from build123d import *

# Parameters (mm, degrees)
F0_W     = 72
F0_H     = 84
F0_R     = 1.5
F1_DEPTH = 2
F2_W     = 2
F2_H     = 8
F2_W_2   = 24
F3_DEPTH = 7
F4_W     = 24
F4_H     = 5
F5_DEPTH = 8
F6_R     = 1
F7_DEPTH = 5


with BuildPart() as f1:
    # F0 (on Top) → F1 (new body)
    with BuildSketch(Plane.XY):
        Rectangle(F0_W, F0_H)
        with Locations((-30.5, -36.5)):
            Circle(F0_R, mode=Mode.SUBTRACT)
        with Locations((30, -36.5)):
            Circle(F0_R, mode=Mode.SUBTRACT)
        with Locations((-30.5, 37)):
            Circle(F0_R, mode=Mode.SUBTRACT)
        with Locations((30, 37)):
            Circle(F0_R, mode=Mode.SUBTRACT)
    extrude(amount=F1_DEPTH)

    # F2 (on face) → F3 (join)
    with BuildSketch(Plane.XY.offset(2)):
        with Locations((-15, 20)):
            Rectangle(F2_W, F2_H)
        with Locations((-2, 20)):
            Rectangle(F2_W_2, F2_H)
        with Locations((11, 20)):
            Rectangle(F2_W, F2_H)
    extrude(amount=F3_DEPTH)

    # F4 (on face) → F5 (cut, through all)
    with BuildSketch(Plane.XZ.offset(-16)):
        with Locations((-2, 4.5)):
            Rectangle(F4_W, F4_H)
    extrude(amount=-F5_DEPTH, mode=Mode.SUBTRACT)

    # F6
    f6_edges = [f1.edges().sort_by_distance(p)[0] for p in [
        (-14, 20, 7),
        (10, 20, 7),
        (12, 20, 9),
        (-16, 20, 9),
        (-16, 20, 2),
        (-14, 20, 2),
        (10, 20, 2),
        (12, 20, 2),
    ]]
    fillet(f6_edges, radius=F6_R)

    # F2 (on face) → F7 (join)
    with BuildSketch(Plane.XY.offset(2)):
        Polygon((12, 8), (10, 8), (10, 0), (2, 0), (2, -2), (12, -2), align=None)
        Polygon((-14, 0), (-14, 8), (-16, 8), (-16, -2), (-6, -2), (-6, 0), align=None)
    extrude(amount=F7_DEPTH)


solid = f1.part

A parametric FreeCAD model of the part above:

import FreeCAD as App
import Part
import Sketcher
Q = App.Units.Quantity


def edges_at(feature, points):
    """Names of the edges that pass closest to the given points."""
    edges = feature.Shape.Edges
    near = lambda p: min(range(len(edges)), key=lambda i: edges[i].distToShape(Part.Vertex(*p))[0])
    return sorted({f"Edge{near(p) + 1}" for p in points})


def add_polygon(sketch, points):
    """Adds a closed chain of lines whose ends are joined by coincident constraints."""
    first, n = sketch.GeometryCount, len(points)
    for a, b in zip(points, points[1:] + points[:1]):
        sketch.addGeometry(Part.LineSegment(App.Vector(*a, 0), App.Vector(*b, 0)), False)
    for i in range(n):
        sketch.addConstraint(Sketcher.Constraint("Coincident", first + i, 2, first + (i + 1) % n, 1))

doc = App.newDocument("Part")
body = doc.addObject("PartDesign::Body", "Body")

# Sketch on XY plane
sketch1 = body.newObject("Sketcher::SketchObject", "Sketch")
sketch1.AttachmentSupport = (doc.getObject("XY_Plane"), [""])
sketch1.MapMode = "FlatFace"
add_polygon(sketch1, [(-36, 42), (-36, -42), (36, -42), (36, 42)])  # lines 0-3
sketch1.addGeometry(Part.Circle(App.Vector(-30.5, -36.5, 0), App.Vector(0, 0, 1), 1.5), False)  # 4
sketch1.addGeometry(Part.Circle(App.Vector(30, -36.5, 0), App.Vector(0, 0, 1), 1.5), False)  # 5
sketch1.addGeometry(Part.Circle(App.Vector(-30.5, 37, 0), App.Vector(0, 0, 1), 1.5), False)  # 6
sketch1.addGeometry(Part.Circle(App.Vector(30, 37, 0), App.Vector(0, 0, 1), 1.5), False)  # 7
sketch1.addConstraint([
    Sketcher.Constraint("Vertical", 0),
    Sketcher.Constraint("Horizontal", 1),
    Sketcher.Constraint("Vertical", 2),
    Sketcher.Constraint("Horizontal", 3),
    Sketcher.Constraint("Equal", 4, 5),
    Sketcher.Constraint("Equal", 5, 6),
    Sketcher.Constraint("Equal", 6, 7),
    Sketcher.Constraint("Symmetric", 0, 2, 2, 2, -1, 1),
    Sketcher.Constraint("Horizontal", 4, 3, 5, 3),
    Sketcher.Constraint("Horizontal", 6, 3, 7, 3),
    Sketcher.Constraint("Vertical", 4, 3, 6, 3),
    Sketcher.Constraint("Vertical", 5, 3, 7, 3),
    Sketcher.Constraint("Diameter", 4, Q("3 mm")),
    Sketcher.Constraint("DistanceX", 1, 1, 1, 2, Q("72 mm")),
    Sketcher.Constraint("DistanceY", 0, 2, 0, 1, Q("84 mm")),
    Sketcher.Constraint("DistanceX", -1, 1, 5, 3, Q("30 mm")),
    Sketcher.Constraint("DistanceY", -1, 1, 6, 3, Q("37 mm")),
    Sketcher.Constraint("DistanceX", 4, 3, -1, 1, Q("30.5 mm")),
    Sketcher.Constraint("DistanceY", 4, 3, -1, 1, Q("36.5 mm")),
])
pad1 = body.newObject("PartDesign::Pad", "Pad")
pad1.Profile = sketch1
pad1.Length = 2

# Sketch on XY plane
sketch2 = body.newObject("Sketcher::SketchObject", "Sketch001")
sketch2.AttachmentSupport = (doc.getObject("XY_Plane"), [""])
sketch2.MapMode = "FlatFace"
sketch2.AttachmentOffset = App.Placement(App.Vector(0, 0, 2), App.Rotation())
add_polygon(sketch2, [(-16, 24), (-16, 16), (12, 16), (12, 24)])  # lines 0-3
sketch2.addConstraint([
    Sketcher.Constraint("Vertical", 0),
    Sketcher.Constraint("Horizontal", 1),
    Sketcher.Constraint("Vertical", 2),
    Sketcher.Constraint("Horizontal", 3),
    Sketcher.Constraint("DistanceX", 1, 1, 1, 2, Q("28 mm")),
    Sketcher.Constraint("DistanceY", 0, 2, 0, 1, Q("8 mm")),
    Sketcher.Constraint("DistanceX", 0, 2, -1, 1, Q("16 mm")),
    Sketcher.Constraint("DistanceY", -1, 1, 0, 2, Q("16 mm")),
])
pad2 = body.newObject("PartDesign::Pad", "Pad001")
pad2.Profile = sketch2
pad2.Length = 7

# Sketch on XZ plane
sketch3 = body.newObject("Sketcher::SketchObject", "Sketch002")
sketch3.AttachmentSupport = (doc.getObject("XZ_Plane"), [""])
sketch3.MapMode = "FlatFace"
sketch3.AttachmentOffset = App.Placement(App.Vector(0, 0, -16), App.Rotation())
add_polygon(sketch3, [(-14, 7), (-14, 2), (10, 2), (10, 7)])  # lines 0-3
sketch3.addConstraint([
    Sketcher.Constraint("Vertical", 0),
    Sketcher.Constraint("Horizontal", 1),
    Sketcher.Constraint("Vertical", 2),
    Sketcher.Constraint("Horizontal", 3),
    Sketcher.Constraint("DistanceX", 1, 1, 1, 2, Q("24 mm")),
    Sketcher.Constraint("DistanceY", 0, 2, 0, 1, Q("5 mm")),
    Sketcher.Constraint("DistanceX", 0, 2, -1, 1, Q("14 mm")),
    Sketcher.Constraint("DistanceY", -1, 1, 0, 2, Q("2 mm")),
])
pocket1 = body.newObject("PartDesign::Pocket", "Pocket")
pocket1.Profile = sketch3
pocket1.Type = "ThroughAll"
doc.recompute()

fillet = body.newObject("PartDesign::Fillet", "Fillet")
fillet.Base = (pocket1, edges_at(pocket1, [
    (-14, 20, 7),
    (10, 20, 7),
    (12, 20, 9),
    (-16, 20, 9),
    (-16, 20, 2),
    (-14, 20, 2),
    (10, 20, 2),
    (12, 20, 2),
]))
fillet.Radius = 1

# Sketch on XY plane
sketch4 = body.newObject("Sketcher::SketchObject", "Sketch003")
sketch4.AttachmentSupport = (doc.getObject("XY_Plane"), [""])
sketch4.MapMode = "FlatFace"
sketch4.AttachmentOffset = App.Placement(App.Vector(0, 0, 2), App.Rotation())
add_polygon(sketch4, [(12, 8), (10, 8), (10, 0), (2, 0), (2, -2), (12, -2)])  # lines 0-5
add_polygon(sketch4, [(-14, 0), (-14, 8), (-16, 8), (-16, -2), (-6, -2), (-6, 0)])  # lines 6-11
sketch4.addConstraint([
    Sketcher.Constraint("Horizontal", 0),
    Sketcher.Constraint("Vertical", 1),
    Sketcher.Constraint("Horizontal", 2),
    Sketcher.Constraint("Vertical", 3),
    Sketcher.Constraint("Horizontal", 4),
    Sketcher.Constraint("Vertical", 5),
    Sketcher.Constraint("Vertical", 6),
    Sketcher.Constraint("Horizontal", 7),
    Sketcher.Constraint("Vertical", 8),
    Sketcher.Constraint("Horizontal", 9),
    Sketcher.Constraint("Vertical", 10),
    Sketcher.Constraint("Horizontal", 11),
    Sketcher.Constraint("PointOnObject", 1, 2, -1),
    Sketcher.Constraint("PointOnObject", 10, 2, -1),
    Sketcher.Constraint("Horizontal", 5, 2, 6, 2),
    Sketcher.Constraint("Horizontal", 4, 2, 8, 2),
    Sketcher.Constraint("Equal", 0, 7),
    Sketcher.Constraint("Equal", 4, 9),
    Sketcher.Constraint("Equal", 11, 1),
    Sketcher.Constraint("Equal", 7, 3),
    Sketcher.Constraint("DistanceX", 0, 2, 0, 1, Q("2 mm")),
    Sketcher.Constraint("DistanceX", 2, 2, 2, 1, Q("8 mm")),
    Sketcher.Constraint("DistanceX", -1, 1, 0, 2, Q("10 mm")),
    Sketcher.Constraint("DistanceX", 6, 2, -1, 1, Q("14 mm")),
])
pad3 = body.newObject("PartDesign::Pad", "Pad002")
pad3.Profile = sketch4
pad3.Length = 5

doc.recompute()
